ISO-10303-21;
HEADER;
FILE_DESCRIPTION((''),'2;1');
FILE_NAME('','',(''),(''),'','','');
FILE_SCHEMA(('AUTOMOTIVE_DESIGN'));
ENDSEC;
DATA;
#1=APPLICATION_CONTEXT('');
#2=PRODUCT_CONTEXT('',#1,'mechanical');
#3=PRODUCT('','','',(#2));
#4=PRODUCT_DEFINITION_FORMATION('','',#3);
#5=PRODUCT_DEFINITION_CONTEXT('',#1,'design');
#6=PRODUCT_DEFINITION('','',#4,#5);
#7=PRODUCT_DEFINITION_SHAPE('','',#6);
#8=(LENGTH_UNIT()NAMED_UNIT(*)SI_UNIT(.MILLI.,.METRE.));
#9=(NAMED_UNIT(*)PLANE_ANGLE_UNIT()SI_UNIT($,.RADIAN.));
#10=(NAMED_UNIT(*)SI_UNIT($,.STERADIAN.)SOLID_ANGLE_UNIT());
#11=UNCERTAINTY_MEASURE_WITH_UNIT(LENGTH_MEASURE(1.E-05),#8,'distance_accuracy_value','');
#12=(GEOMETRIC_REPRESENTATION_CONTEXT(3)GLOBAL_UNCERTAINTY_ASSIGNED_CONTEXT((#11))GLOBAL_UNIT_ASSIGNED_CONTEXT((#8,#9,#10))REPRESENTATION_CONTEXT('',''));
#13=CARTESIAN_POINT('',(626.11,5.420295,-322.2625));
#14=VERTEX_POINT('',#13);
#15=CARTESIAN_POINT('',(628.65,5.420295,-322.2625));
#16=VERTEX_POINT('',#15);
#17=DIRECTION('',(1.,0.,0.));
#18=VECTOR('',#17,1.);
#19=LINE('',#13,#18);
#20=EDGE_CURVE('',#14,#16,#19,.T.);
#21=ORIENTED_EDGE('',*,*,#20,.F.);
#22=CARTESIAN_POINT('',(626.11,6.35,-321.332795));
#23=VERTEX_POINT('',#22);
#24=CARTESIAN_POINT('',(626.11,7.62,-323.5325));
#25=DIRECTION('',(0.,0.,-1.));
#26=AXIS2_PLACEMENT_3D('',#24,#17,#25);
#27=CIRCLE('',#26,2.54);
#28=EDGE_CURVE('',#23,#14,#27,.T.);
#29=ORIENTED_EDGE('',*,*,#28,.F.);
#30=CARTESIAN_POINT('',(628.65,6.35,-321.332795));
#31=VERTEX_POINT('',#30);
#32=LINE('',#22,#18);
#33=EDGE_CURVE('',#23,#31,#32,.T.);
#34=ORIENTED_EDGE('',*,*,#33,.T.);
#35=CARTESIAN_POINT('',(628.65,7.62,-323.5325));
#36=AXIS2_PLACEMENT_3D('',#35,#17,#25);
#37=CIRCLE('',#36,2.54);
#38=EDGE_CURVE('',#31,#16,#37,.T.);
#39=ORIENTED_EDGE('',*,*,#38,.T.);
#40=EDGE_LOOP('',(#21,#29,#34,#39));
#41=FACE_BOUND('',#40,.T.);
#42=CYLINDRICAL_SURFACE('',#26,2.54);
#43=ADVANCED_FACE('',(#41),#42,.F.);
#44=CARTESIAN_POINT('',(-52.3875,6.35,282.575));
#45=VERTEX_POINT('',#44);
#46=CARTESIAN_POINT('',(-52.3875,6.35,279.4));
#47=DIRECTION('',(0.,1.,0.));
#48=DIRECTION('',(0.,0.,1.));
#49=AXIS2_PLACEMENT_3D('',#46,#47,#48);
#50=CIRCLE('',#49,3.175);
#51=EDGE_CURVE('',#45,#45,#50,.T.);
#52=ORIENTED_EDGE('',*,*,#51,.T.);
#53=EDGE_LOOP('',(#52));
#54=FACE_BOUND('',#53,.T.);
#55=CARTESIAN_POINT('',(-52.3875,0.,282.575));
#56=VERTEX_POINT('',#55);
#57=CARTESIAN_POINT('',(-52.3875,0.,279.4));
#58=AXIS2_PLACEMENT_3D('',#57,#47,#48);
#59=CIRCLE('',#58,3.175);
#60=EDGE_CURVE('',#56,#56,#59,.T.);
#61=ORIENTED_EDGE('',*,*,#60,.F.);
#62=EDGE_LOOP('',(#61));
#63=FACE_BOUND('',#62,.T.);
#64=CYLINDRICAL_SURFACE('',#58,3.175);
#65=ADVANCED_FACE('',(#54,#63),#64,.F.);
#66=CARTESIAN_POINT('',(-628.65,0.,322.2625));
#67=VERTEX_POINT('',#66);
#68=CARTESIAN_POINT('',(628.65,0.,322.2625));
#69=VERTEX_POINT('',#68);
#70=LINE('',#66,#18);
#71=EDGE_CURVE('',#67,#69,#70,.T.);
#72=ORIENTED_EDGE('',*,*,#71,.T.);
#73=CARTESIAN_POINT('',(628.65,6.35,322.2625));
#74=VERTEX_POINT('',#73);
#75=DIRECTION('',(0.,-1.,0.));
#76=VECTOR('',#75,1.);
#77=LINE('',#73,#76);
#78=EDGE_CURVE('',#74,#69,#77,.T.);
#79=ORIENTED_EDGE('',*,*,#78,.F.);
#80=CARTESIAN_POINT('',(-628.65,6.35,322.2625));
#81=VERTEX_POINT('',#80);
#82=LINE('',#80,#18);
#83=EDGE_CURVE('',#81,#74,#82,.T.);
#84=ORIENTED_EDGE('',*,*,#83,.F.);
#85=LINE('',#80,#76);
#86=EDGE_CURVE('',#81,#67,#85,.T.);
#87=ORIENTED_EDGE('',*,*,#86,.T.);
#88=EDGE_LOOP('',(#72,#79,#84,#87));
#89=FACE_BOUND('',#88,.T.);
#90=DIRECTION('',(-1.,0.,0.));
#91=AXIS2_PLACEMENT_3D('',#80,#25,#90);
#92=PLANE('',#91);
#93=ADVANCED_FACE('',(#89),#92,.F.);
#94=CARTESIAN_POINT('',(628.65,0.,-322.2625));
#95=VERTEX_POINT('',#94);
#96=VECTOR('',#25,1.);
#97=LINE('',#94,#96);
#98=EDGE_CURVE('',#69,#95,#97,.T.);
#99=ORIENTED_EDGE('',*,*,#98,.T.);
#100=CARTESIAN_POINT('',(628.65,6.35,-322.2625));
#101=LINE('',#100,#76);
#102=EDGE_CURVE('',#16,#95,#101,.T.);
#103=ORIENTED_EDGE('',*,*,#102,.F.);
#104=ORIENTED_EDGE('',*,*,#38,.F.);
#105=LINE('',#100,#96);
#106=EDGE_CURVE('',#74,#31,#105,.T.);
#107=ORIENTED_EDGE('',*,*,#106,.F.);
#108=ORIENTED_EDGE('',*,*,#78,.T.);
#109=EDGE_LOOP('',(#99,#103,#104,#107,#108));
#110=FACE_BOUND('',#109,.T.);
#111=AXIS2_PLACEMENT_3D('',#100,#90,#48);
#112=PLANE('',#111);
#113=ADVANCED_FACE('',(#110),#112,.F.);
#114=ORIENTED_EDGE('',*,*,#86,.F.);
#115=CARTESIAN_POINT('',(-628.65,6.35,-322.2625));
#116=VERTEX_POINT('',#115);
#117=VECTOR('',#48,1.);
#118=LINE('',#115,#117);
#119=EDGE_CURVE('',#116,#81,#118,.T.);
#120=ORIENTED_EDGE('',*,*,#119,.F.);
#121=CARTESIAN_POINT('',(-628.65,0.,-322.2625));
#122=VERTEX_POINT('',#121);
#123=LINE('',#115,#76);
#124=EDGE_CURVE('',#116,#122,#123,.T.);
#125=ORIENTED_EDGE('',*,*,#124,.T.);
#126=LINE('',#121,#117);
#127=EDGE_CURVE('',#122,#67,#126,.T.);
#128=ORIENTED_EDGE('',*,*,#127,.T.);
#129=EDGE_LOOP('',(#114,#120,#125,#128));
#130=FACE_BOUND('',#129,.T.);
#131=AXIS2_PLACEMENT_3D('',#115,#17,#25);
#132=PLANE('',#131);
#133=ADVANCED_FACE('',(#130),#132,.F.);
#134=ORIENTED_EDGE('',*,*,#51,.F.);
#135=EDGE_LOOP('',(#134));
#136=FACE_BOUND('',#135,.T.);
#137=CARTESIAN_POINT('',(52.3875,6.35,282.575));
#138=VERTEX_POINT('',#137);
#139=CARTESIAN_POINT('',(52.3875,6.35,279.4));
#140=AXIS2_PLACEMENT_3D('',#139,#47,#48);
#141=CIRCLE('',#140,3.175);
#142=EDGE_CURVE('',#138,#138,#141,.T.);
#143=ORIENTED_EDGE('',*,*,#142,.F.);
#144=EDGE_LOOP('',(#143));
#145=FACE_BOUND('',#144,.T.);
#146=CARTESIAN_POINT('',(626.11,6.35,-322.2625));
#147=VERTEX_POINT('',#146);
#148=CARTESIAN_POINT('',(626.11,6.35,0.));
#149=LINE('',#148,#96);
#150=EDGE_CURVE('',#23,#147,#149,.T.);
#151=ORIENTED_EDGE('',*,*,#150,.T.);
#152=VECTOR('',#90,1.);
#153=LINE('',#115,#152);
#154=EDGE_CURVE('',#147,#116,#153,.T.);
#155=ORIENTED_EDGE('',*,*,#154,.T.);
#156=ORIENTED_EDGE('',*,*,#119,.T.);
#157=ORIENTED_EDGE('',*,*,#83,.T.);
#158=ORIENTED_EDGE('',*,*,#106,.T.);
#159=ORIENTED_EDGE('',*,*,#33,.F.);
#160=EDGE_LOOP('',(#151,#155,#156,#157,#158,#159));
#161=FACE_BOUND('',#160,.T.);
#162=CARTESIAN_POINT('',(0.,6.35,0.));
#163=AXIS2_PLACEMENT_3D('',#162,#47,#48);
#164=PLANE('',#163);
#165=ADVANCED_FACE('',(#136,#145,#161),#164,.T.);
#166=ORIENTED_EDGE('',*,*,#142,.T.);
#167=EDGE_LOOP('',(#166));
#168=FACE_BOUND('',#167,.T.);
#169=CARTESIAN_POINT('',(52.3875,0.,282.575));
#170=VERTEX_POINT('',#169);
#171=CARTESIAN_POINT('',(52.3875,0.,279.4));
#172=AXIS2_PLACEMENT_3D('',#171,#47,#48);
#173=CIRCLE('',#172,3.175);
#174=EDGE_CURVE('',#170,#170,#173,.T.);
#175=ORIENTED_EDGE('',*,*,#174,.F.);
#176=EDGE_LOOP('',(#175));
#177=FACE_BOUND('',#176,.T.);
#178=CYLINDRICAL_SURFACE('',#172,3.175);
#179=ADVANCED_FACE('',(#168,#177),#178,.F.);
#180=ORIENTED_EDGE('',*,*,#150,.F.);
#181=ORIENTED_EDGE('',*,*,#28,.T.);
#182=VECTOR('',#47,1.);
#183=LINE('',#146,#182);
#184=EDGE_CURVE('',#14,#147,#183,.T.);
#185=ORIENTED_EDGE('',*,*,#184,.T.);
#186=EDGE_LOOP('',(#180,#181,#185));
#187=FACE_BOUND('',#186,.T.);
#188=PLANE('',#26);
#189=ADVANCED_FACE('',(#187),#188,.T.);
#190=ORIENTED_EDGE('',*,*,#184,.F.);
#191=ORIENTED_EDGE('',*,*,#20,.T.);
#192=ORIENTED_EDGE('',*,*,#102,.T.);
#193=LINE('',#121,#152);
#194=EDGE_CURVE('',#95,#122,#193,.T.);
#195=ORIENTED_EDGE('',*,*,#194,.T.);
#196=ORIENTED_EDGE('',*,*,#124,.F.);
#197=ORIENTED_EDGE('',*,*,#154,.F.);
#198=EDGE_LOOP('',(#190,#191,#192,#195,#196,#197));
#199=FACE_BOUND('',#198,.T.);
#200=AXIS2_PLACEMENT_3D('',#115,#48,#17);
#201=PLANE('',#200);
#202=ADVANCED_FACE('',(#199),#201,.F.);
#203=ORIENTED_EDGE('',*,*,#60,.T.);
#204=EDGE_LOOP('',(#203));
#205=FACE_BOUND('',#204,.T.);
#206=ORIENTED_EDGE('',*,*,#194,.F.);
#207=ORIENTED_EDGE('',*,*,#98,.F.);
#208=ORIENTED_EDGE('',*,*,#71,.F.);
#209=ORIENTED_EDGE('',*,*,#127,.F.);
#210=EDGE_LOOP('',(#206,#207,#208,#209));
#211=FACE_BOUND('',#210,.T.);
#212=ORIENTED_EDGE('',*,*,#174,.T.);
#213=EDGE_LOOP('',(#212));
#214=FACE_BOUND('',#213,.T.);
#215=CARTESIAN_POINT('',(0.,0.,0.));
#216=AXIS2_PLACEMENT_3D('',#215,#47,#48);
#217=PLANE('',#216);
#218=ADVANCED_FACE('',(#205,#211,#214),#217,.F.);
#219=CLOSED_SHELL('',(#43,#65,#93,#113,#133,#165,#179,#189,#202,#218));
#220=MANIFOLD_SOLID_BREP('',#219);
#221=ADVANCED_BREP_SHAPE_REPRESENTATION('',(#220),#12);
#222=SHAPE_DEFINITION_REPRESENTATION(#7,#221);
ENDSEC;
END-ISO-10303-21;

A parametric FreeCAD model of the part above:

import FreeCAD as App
import Part
import Sketcher
from FreeCAD import Vector
Q = App.Units.Quantity

doc = App.newDocument("Part")
body = doc.addObject("PartDesign::Body", "Body")

# Sketch on XZ plane
sketch1 = body.newObject("Sketcher::SketchObject", "Sketch")
sketch1.AttachmentSupport = (doc.getObject("XZ_Plane"), [""])
sketch1.MapMode = "FlatFace"
sketch1.addGeometry([
    Part.LineSegment(Vector(-628.65, -322.2625, 0), Vector(-628.65, 322.2625, 0)),
    Part.LineSegment(Vector(-628.65, 322.2625, 0), Vector(628.65, 322.2625, 0)),
    Part.LineSegment(Vector(628.65, 322.2625, 0), Vector(628.65, -322.2625, 0)),
    Part.LineSegment(Vector(628.65, -322.2625, 0), Vector(-628.65, -322.2625, 0)),
], False)
sketch1.addConstraint([
    Sketcher.Constraint("Coincident", 0, 2, 1, 1),
    Sketcher.Constraint("Coincident", 1, 2, 2, 1),
    Sketcher.Constraint("Coincident", 2, 2, 3, 1),
    Sketcher.Constraint("Coincident", 3, 2, 0, 1),
    Sketcher.Constraint("Vertical", 0),
    Sketcher.Constraint("Horizontal", 1),
    Sketcher.Constraint("Vertical", 2),
    Sketcher.Constraint("Horizontal", 3),
    Sketcher.Constraint("Symmetric", 0, 2, 2, 2, -1, 1),
    Sketcher.Constraint("DistanceX", 1, 1, 1, 2, Q("49.5 in")),
    Sketcher.Constraint("DistanceY", 0, 1, 0, 2, Q("25.375 in")),
])
pad1 = body.newObject("PartDesign::Pad", "Pad")
pad1.Profile = sketch1
pad1.Length = Q("0.25 in")
pad1.Reversed = True

# Sketch on XZ plane
sketch2 = body.newObject("Sketcher::SketchObject", "Sketch001")
sketch2.AttachmentSupport = (doc.getObject("XZ_Plane"), [""])
sketch2.MapMode = "FlatFace"
sketch2.AttachmentOffset = App.Placement(Vector(0, 0, -0.25 * 25.4), App.Rotation())
sketch2.addGeometry([
    Part.Circle(Vector(-52.3875, 279.4, 0), Vector(0, 0, 1), 3.175),
    Part.Circle(Vector(52.3875, 279.4, 0), Vector(0, 0, 1), 3.175),
], False)
sketch2.addConstraint([
    Sketcher.Constraint("Equal", 0, 1),
    Sketcher.Constraint("Symmetric", 0, 3, 1, 3, -2),
    Sketcher.Constraint("Diameter", 0, Q("0.25 in")),
    Sketcher.Constraint("DistanceY", -1, 1, 0, 3, Q("11 in")),
    Sketcher.Constraint("DistanceX", 0, 3, -1, 1, Q("2.0625 in")),
])
pocket1 = body.newObject("PartDesign::Pocket", "Pocket")
pocket1.Profile = sketch2
pocket1.Type = "ThroughAll"
pocket1.Reversed = True

# Sketch on YZ plane
sketch3 = body.newObject("Sketcher::SketchObject", "Sketch002")
sketch3.AttachmentSupport = (doc.getObject("YZ_Plane"), [""])
sketch3.MapMode = "FlatFace"
sketch3.AttachmentOffset = App.Placement(Vector(0, 0, 24.75 * 25.4), App.Rotation())
sketch3.addGeometry(Part.Circle(Vector(7.62, -323.5325, 0), Vector(0, 0, 1), 2.54), False)
sketch3.addConstraint([
    Sketcher.Constraint("Diameter", 0, Q("0.2 in")),
    Sketcher.Constraint("DistanceX", -1, 1, 0, 3, Q("0.3 in")),
    Sketcher.Constraint("DistanceY", 0, 3, -1, 1, Q("12.7375 in")),
])
pocket2 = body.newObject("PartDesign::Pocket", "Pocket001")
pocket2.Profile = sketch3
pocket2.Length = Q("0.1 in")

doc.recompute()
